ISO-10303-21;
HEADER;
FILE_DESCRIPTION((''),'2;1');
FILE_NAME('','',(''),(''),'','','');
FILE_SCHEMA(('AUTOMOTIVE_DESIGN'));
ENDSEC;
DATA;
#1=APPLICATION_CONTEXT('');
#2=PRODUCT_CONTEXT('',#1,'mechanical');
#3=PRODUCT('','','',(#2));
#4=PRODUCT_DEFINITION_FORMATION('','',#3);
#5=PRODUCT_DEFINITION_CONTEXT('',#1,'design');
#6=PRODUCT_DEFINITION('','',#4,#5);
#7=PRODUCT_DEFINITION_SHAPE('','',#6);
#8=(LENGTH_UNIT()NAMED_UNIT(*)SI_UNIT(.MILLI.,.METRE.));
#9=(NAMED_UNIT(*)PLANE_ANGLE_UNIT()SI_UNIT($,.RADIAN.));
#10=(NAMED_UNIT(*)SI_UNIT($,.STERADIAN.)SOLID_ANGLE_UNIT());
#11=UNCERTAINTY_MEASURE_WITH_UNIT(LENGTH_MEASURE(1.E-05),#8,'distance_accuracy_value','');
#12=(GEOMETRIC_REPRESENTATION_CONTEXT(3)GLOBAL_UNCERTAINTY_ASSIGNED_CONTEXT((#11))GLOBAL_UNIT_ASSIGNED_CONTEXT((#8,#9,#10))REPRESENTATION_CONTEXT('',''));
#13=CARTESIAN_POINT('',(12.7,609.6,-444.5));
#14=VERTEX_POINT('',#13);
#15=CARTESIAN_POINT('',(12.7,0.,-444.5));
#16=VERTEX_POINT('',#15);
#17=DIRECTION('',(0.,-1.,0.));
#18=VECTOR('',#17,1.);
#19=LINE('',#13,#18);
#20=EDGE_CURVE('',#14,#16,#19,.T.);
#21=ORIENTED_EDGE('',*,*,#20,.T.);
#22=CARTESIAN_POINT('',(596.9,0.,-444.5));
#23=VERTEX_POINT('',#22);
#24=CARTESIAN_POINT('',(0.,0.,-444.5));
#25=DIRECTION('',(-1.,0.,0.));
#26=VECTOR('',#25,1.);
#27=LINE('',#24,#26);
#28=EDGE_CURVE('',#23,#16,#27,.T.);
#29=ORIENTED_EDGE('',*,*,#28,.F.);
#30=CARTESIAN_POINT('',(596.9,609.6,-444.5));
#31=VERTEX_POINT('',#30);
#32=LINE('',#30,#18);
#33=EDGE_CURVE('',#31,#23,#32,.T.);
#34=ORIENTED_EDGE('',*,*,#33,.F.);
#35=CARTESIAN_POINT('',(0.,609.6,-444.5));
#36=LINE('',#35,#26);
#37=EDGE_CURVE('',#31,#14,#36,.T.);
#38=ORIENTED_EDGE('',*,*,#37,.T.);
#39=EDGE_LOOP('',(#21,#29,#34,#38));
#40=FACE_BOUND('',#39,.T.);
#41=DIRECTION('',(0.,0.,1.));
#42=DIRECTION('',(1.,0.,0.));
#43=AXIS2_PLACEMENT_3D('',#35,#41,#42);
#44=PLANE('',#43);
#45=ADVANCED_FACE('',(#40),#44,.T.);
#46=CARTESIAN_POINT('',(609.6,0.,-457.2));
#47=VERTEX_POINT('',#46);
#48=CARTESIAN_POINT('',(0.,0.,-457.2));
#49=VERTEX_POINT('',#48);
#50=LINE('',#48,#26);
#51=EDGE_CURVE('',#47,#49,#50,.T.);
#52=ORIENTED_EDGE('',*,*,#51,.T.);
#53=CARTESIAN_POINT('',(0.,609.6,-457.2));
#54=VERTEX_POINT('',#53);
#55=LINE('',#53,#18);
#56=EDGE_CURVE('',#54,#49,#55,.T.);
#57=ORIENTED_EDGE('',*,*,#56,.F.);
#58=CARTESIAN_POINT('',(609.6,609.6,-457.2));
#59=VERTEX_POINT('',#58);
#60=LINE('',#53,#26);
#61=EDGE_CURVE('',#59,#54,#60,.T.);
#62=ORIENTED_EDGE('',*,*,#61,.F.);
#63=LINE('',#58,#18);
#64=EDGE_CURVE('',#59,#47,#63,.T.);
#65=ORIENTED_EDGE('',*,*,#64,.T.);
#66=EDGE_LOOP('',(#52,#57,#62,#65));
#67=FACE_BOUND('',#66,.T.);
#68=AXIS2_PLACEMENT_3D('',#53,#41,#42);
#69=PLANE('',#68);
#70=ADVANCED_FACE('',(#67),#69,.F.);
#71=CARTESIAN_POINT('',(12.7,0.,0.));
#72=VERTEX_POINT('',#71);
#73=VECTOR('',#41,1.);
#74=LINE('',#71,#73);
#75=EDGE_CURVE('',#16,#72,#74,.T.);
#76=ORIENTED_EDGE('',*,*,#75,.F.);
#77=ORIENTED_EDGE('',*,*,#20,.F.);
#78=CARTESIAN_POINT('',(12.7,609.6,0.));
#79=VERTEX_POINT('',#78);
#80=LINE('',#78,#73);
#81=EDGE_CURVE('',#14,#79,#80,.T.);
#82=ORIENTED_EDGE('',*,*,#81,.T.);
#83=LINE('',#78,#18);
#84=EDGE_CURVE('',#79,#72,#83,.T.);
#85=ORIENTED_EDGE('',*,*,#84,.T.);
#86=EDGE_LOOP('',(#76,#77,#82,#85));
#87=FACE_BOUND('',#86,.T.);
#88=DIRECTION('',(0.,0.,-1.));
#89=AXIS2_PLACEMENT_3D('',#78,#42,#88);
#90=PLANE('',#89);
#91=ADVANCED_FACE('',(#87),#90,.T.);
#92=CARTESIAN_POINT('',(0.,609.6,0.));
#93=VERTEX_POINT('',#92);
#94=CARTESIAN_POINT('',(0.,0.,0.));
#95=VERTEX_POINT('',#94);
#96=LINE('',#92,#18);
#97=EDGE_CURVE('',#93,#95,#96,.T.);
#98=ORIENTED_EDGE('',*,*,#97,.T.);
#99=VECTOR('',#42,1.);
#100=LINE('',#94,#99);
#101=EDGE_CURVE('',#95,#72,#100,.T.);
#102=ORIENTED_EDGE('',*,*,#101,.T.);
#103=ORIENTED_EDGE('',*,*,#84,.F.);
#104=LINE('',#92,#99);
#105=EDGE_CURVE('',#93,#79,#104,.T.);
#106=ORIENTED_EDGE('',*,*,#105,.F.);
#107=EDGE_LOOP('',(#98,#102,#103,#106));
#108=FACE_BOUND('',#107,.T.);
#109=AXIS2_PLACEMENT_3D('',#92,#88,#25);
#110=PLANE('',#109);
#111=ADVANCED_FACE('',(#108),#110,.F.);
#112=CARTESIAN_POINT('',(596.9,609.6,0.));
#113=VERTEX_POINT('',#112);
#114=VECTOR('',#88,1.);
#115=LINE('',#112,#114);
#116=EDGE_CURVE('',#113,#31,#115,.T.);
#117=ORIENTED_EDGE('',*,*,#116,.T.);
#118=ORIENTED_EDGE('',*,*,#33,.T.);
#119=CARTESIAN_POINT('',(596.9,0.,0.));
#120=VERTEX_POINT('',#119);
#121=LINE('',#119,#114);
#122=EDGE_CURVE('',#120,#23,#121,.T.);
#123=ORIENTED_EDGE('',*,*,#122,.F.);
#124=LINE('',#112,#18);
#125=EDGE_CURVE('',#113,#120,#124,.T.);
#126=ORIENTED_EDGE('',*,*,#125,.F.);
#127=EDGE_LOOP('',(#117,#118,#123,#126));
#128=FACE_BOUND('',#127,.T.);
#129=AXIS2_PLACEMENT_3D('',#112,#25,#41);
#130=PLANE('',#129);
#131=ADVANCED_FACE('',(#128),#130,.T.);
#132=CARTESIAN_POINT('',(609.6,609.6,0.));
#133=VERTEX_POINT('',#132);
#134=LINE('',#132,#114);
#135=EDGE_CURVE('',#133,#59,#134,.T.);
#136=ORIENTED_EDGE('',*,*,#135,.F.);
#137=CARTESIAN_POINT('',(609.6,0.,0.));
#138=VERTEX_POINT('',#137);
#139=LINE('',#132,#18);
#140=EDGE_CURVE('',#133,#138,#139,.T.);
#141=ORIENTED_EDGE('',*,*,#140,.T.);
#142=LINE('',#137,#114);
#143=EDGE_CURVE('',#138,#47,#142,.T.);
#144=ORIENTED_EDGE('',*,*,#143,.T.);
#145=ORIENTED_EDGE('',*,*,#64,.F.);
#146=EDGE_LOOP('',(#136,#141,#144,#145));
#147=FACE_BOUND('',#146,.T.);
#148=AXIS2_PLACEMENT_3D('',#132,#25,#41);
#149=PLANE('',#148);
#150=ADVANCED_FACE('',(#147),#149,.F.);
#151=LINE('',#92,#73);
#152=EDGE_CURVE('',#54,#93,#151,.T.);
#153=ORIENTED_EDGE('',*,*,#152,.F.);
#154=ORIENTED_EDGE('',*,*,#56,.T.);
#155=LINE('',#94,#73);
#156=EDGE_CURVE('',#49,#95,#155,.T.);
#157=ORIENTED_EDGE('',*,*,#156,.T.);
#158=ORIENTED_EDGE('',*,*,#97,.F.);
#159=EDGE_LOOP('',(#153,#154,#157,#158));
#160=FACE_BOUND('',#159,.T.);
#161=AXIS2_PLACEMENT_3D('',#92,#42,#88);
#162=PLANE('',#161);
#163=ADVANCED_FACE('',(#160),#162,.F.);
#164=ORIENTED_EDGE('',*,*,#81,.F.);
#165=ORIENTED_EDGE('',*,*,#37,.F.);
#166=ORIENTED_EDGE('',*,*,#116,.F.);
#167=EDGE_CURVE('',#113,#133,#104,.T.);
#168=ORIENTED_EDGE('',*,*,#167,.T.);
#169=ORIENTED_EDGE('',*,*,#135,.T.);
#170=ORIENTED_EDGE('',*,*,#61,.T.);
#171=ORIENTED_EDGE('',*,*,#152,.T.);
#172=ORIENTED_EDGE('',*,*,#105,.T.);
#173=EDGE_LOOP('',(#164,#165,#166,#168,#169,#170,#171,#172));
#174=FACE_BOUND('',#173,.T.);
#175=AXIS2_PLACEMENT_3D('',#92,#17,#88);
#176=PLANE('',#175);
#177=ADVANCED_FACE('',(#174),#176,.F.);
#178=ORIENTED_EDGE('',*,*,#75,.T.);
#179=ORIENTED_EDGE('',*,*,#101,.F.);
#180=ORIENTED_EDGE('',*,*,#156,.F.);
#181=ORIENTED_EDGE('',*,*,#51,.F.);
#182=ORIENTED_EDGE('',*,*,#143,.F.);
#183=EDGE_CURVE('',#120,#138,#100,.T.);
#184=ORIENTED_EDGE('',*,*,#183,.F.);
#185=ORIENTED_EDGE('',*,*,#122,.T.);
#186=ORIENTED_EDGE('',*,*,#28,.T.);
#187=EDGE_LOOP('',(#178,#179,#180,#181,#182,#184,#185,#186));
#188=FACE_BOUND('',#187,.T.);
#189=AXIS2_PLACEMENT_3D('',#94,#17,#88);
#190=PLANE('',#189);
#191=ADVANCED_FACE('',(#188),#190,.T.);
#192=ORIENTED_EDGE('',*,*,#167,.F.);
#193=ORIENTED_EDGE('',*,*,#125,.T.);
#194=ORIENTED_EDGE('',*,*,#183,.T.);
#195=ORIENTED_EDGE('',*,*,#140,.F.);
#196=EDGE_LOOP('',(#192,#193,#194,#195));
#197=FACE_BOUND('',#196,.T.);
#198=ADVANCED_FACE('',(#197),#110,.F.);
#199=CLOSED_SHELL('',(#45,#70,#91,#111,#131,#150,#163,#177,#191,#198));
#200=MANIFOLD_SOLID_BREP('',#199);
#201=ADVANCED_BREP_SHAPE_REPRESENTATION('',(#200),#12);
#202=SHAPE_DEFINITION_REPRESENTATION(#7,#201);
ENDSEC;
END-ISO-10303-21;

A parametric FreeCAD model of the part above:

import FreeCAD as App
import Part
import Sketcher
Q = App.Units.Quantity


def faces_at(feature, points):
    """Names of the faces that lie closest to the given points."""
    faces = feature.Shape.Faces
    near = lambda p: min(range(len(faces)), key=lambda i: faces[i].distToShape(Part.Vertex(*p))[0])
    return sorted({f"Face{near(p) + 1}" for p in points})


def add_polygon(sketch, points):
    """Adds a closed chain of lines whose ends are joined by coincident constraints."""
    first, n = sketch.GeometryCount, len(points)
    for a, b in zip(points, points[1:] + points[:1]):
        sketch.addGeometry(Part.LineSegment(App.Vector(*a, 0), App.Vector(*b, 0)), False)
    for i in range(n):
        sketch.addConstraint(Sketcher.Constraint("Coincident", first + i, 2, first + (i + 1) % n, 1))

doc = App.newDocument("Part")
body = doc.addObject("PartDesign::Body", "Body")

# Sketch on XZ plane
sketch1 = body.newObject("Sketcher::SketchObject", "Sketch")
sketch1.AttachmentSupport = (doc.getObject("XZ_Plane"), [""])
sketch1.MapMode = "FlatFace"
add_polygon(sketch1, [(0, -457.2), (0, 0), (609.6, 0), (609.6, -457.2)])  # lines 0-3
sketch1.addConstraint(Sketcher.Constraint("Vertical", 0))
sketch1.addConstraint(Sketcher.Constraint("Horizontal", 1))
sketch1.addConstraint(Sketcher.Constraint("Vertical", 2))
sketch1.addConstraint(Sketcher.Constraint("Horizontal", 3))
sketch1.addConstraint(Sketcher.Constraint("Coincident", 0, 2, -1, 1))
sketch1.addConstraint(Sketcher.Constraint("DistanceX", 1, 1, 1, 2, Q("24 in")))
sketch1.addConstraint(Sketcher.Constraint("DistanceY", 0, 1, 0, 2, Q("18 in")))
pad1 = body.newObject("PartDesign::Pad", "Pad")
pad1.Profile = sketch1
pad1.Length = Q("24 in")
pad1.Reversed = True
doc.recompute()

thickness = body.newObject("PartDesign::Thickness", "Thickness")
thickness.Base = (pad1, faces_at(pad1, [(304.8, 609.6, -228.6), (304.8, 0, -228.6), (304.8, 304.8, 0)]))
thickness.Value = Q("0.5 in")
thickness.Reversed = True
thickness.Join = "Intersection"

doc.recompute()
